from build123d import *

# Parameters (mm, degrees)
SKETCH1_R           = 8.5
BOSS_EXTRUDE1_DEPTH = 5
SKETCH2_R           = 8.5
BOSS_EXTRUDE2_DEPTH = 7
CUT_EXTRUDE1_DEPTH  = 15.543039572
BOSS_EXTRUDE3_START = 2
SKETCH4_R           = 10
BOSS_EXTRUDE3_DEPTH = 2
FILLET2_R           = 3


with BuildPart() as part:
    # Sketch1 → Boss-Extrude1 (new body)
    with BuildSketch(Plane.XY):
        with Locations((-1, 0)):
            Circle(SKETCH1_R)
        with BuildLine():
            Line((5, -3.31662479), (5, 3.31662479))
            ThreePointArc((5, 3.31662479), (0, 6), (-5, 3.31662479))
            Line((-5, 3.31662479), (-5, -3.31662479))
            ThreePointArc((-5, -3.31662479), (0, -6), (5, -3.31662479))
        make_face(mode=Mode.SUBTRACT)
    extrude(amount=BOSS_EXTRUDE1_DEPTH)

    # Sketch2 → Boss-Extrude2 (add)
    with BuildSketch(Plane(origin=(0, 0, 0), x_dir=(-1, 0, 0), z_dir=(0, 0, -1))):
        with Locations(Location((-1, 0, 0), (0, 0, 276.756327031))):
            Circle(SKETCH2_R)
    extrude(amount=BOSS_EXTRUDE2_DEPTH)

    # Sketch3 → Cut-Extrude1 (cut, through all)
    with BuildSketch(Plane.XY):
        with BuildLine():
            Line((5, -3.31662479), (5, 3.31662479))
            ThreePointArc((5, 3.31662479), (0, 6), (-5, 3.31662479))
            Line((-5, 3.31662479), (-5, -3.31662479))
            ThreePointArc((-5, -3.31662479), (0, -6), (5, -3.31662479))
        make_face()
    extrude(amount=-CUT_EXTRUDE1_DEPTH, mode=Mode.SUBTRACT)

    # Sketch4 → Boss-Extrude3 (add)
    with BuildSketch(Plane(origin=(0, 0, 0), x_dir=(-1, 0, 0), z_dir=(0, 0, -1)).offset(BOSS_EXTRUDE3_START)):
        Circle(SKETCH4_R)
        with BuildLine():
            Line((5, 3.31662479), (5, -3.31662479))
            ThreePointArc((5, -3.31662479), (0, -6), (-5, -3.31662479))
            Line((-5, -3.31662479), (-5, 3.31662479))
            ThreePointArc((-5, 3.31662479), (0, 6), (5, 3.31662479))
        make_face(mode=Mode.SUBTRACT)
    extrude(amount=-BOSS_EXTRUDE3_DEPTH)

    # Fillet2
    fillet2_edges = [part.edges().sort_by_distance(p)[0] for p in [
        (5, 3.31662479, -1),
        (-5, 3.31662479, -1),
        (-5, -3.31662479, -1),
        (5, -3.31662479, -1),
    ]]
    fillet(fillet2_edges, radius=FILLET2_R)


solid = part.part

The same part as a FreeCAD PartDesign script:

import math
import FreeCAD as App
import Part
import Sketcher


def edges_at(feature, points):
    """Names of the edges that pass closest to the given points."""
    edges = feature.Shape.Edges
    near = lambda p: min(range(len(edges)), key=lambda i: edges[i].distToShape(Part.Vertex(*p))[0])
    return sorted({f"Edge{near(p) + 1}" for p in points})

doc = App.newDocument("Part")
body = doc.addObject("PartDesign::Body", "Body")

# Sketch on XY plane
sketch1 = body.newObject("Sketcher::SketchObject", "Sketch")
sketch1.AttachmentSupport = (doc.getObject("XY_Plane"), [""])
sketch1.MapMode = "FlatFace"
sketch1.addGeometry(Part.Circle(App.Vector(-1, 0, 0), App.Vector(0, 0, 1), 8), False)
sketch1.addGeometry(Part.LineSegment(App.Vector(5, 3, 0), App.Vector(5, -3, 0)), False)
sketch1.addGeometry(Part.ArcOfCircle(Part.Circle(App.Vector(0, 0, 0), App.Vector(0, 0, 1), 6), math.radians(-146), math.radians(-34)), False)
sketch1.addGeometry(Part.LineSegment(App.Vector(-5, -3, 0), App.Vector(-5, 3, 0)), False)
sketch1.addGeometry(Part.ArcOfCircle(Part.Circle(App.Vector(0, 0, 0), App.Vector(0, 0, 1), 6), math.radians(34), math.radians(146)), False)
sketch1.addConstraint(Sketcher.Constraint("Coincident", 1, 2, 2, 2))
sketch1.addConstraint(Sketcher.Constraint("Coincident", 2, 1, 3, 1))
sketch1.addConstraint(Sketcher.Constraint("Coincident", 3, 2, 4, 2))
sketch1.addConstraint(Sketcher.Constraint("Coincident", 4, 1, 1, 1))
sketch1.addConstraint(Sketcher.Constraint("Vertical", 1))
sketch1.addConstraint(Sketcher.Constraint("Vertical", 3))
sketch1.addConstraint(Sketcher.Constraint("Coincident", 2, 3, -1, 1))
sketch1.addConstraint(Sketcher.Constraint("Coincident", 4, 3, -1, 1))
sketch1.addConstraint(Sketcher.Constraint("Equal", 2, 4))
sketch1.addConstraint(Sketcher.Constraint("PointOnObject", 0, 3, -1))
sketch1.addConstraint(Sketcher.Constraint("Horizontal", 1, 2, 2, 1))
sketch1.addConstraint(Sketcher.Constraint("Diameter", 0, 17.0))
sketch1.addConstraint(Sketcher.Constraint("Radius", 2, 6.0))
sketch1.addConstraint(Sketcher.Constraint("DistanceX", 0, 3, -1, 1, 1.0))
sketch1.addConstraint(Sketcher.Constraint("DistanceX", -1, 1, 1, 2, 5.0))
pad1 = body.newObject("PartDesign::Pad", "Pad")
pad1.Profile = sketch1
pad1.Length = 5

# Sketch on XY plane
sketch2 = body.newObject("Sketcher::SketchObject", "Sketch001")
sketch2.AttachmentSupport = (doc.getObject("XY_Plane"), [""])
sketch2.MapMode = "FlatFace"
sketch2.addGeometry(Part.Circle(App.Vector(1, 0, 0), App.Vector(0, 0, 1), 8), False)
sketch2.addConstraint(Sketcher.Constraint("PointOnObject", 0, 3, -1))
sketch2.addConstraint(Sketcher.Constraint("Diameter", 0, 17.0))
sketch2.addConstraint(Sketcher.Constraint("DistanceX", -1, 1, 0, 3, 1.0))
pad2 = body.newObject("PartDesign::Pad", "Pad001")
pad2.Profile = sketch2
pad2.Length = 7
pad2.Reversed = True

# Sketch on XY plane
sketch3 = body.newObject("Sketcher::SketchObject", "Sketch002")
sketch3.AttachmentSupport = (doc.getObject("XY_Plane"), [""])
sketch3.MapMode = "FlatFace"
sketch3.addGeometry(Part.LineSegment(App.Vector(5, -3, 0), App.Vector(5, 3, 0)), False)
sketch3.addGeometry(Part.ArcOfCircle(Part.Circle(App.Vector(0, 0, 0), App.Vector(0, 0, 1), 6), math.radians(34), math.radians(146)), False)
sketch3.addGeometry(Part.LineSegment(App.Vector(-5, 3, 0), App.Vector(-5, -3, 0)), False)
sketch3.addGeometry(Part.ArcOfCircle(Part.Circle(App.Vector(0, 0, 0), App.Vector(0, 0, 1), 6), math.radians(-146), math.radians(-34)), False)
sketch3.addConstraint(Sketcher.Constraint("Coincident", 0, 2, 1, 1))
sketch3.addConstraint(Sketcher.Constraint("Coincident", 1, 2, 2, 1))
sketch3.addConstraint(Sketcher.Constraint("Coincident", 2, 2, 3, 1))
sketch3.addConstraint(Sketcher.Constraint("Coincident", 3, 2, 0, 1))
sketch3.addConstraint(Sketcher.Constraint("Vertical", 0))
sketch3.addConstraint(Sketcher.Constraint("Vertical", 2))
sketch3.addConstraint(Sketcher.Constraint("Coincident", 1, 3, -1, 1))
sketch3.addConstraint(Sketcher.Constraint("Coincident", 3, 3, -1, 1))
sketch3.addConstraint(Sketcher.Constraint("Equal", 1, 3))
sketch3.addConstraint(Sketcher.Constraint("Horizontal", 0, 2, 1, 2))
sketch3.addConstraint(Sketcher.Constraint("Radius", 1, 6.0))
sketch3.addConstraint(Sketcher.Constraint("DistanceX", -1, 1, 0, 2, 5.0))
pocket1 = body.newObject("PartDesign::Pocket", "Pocket")
pocket1.Profile = sketch3
pocket1.Type = "ThroughAll"

# Sketch on XY plane
sketch4 = body.newObject("Sketcher::SketchObject", "Sketch003")
sketch4.AttachmentSupport = (doc.getObject("XY_Plane"), [""])
sketch4.MapMode = "FlatFace"
sketch4.AttachmentOffset = App.Placement(App.Vector(0, 0, -2), App.Rotation())
sketch4.addGeometry(Part.Circle(App.Vector(0, 0, 0), App.Vector(0, 0, 1), 10), False)
sketch4.addGeometry(Part.ArcOfCircle(Part.Circle(App.Vector(0, 0, 0), App.Vector(0, 0, 1), 6), math.radians(34), math.radians(146)), False)
sketch4.addGeometry(Part.LineSegment(App.Vector(-5, 3, 0), App.Vector(-5, -3, 0)), False)
sketch4.addGeometry(Part.ArcOfCircle(Part.Circle(App.Vector(0, 0, 0), App.Vector(0, 0, 1), 6), math.radians(-146), math.radians(-34)), False)
sketch4.addGeometry(Part.LineSegment(App.Vector(5, -3, 0), App.Vector(5, 3, 0)), False)
sketch4.addConstraint(Sketcher.Constraint("Coincident", 1, 2, 2, 1))
sketch4.addConstraint(Sketcher.Constraint("Coincident", 2, 2, 3, 1))
sketch4.addConstraint(Sketcher.Constraint("Coincident", 3, 2, 4, 1))
sketch4.addConstraint(Sketcher.Constraint("Coincident", 4, 2, 1, 1))
sketch4.addConstraint(Sketcher.Constraint("Vertical", 2))
sketch4.addConstraint(Sketcher.Constraint("Vertical", 4))
sketch4.addConstraint(Sketcher.Constraint("Coincident", 0, 3, -1, 1))
sketch4.addConstraint(Sketcher.Constraint("Coincident", 1, 3, -1, 1))
sketch4.addConstraint(Sketcher.Constraint("Coincident", 3, 3, -1, 1))
sketch4.addConstraint(Sketcher.Constraint("Equal", 1, 3))
sketch4.addConstraint(Sketcher.Constraint("Horizontal", 2, 2, 3, 2))
sketch4.addConstraint(Sketcher.Constraint("Diameter", 0, 20.0))
sketch4.addConstraint(Sketcher.Constraint("Radius", 1, 6.0))
sketch4.addConstraint(Sketcher.Constraint("DistanceX", 1, 2, -1, 1, 5.0))
pad3 = body.newObject("PartDesign::Pad", "Pad002")
pad3.Profile = sketch4
pad3.Length = 2
doc.recompute()

fillet = body.newObject("PartDesign::Fillet", "Fillet")
fillet.Base = (pad3, edges_at(pad3, [
    (5, 3.317, -1),
    (-5, 3.317, -1),
    (-5, -3.317, -1),
    (5, -3.317, -1),
]))
fillet.Radius = 3

doc.recompute()
